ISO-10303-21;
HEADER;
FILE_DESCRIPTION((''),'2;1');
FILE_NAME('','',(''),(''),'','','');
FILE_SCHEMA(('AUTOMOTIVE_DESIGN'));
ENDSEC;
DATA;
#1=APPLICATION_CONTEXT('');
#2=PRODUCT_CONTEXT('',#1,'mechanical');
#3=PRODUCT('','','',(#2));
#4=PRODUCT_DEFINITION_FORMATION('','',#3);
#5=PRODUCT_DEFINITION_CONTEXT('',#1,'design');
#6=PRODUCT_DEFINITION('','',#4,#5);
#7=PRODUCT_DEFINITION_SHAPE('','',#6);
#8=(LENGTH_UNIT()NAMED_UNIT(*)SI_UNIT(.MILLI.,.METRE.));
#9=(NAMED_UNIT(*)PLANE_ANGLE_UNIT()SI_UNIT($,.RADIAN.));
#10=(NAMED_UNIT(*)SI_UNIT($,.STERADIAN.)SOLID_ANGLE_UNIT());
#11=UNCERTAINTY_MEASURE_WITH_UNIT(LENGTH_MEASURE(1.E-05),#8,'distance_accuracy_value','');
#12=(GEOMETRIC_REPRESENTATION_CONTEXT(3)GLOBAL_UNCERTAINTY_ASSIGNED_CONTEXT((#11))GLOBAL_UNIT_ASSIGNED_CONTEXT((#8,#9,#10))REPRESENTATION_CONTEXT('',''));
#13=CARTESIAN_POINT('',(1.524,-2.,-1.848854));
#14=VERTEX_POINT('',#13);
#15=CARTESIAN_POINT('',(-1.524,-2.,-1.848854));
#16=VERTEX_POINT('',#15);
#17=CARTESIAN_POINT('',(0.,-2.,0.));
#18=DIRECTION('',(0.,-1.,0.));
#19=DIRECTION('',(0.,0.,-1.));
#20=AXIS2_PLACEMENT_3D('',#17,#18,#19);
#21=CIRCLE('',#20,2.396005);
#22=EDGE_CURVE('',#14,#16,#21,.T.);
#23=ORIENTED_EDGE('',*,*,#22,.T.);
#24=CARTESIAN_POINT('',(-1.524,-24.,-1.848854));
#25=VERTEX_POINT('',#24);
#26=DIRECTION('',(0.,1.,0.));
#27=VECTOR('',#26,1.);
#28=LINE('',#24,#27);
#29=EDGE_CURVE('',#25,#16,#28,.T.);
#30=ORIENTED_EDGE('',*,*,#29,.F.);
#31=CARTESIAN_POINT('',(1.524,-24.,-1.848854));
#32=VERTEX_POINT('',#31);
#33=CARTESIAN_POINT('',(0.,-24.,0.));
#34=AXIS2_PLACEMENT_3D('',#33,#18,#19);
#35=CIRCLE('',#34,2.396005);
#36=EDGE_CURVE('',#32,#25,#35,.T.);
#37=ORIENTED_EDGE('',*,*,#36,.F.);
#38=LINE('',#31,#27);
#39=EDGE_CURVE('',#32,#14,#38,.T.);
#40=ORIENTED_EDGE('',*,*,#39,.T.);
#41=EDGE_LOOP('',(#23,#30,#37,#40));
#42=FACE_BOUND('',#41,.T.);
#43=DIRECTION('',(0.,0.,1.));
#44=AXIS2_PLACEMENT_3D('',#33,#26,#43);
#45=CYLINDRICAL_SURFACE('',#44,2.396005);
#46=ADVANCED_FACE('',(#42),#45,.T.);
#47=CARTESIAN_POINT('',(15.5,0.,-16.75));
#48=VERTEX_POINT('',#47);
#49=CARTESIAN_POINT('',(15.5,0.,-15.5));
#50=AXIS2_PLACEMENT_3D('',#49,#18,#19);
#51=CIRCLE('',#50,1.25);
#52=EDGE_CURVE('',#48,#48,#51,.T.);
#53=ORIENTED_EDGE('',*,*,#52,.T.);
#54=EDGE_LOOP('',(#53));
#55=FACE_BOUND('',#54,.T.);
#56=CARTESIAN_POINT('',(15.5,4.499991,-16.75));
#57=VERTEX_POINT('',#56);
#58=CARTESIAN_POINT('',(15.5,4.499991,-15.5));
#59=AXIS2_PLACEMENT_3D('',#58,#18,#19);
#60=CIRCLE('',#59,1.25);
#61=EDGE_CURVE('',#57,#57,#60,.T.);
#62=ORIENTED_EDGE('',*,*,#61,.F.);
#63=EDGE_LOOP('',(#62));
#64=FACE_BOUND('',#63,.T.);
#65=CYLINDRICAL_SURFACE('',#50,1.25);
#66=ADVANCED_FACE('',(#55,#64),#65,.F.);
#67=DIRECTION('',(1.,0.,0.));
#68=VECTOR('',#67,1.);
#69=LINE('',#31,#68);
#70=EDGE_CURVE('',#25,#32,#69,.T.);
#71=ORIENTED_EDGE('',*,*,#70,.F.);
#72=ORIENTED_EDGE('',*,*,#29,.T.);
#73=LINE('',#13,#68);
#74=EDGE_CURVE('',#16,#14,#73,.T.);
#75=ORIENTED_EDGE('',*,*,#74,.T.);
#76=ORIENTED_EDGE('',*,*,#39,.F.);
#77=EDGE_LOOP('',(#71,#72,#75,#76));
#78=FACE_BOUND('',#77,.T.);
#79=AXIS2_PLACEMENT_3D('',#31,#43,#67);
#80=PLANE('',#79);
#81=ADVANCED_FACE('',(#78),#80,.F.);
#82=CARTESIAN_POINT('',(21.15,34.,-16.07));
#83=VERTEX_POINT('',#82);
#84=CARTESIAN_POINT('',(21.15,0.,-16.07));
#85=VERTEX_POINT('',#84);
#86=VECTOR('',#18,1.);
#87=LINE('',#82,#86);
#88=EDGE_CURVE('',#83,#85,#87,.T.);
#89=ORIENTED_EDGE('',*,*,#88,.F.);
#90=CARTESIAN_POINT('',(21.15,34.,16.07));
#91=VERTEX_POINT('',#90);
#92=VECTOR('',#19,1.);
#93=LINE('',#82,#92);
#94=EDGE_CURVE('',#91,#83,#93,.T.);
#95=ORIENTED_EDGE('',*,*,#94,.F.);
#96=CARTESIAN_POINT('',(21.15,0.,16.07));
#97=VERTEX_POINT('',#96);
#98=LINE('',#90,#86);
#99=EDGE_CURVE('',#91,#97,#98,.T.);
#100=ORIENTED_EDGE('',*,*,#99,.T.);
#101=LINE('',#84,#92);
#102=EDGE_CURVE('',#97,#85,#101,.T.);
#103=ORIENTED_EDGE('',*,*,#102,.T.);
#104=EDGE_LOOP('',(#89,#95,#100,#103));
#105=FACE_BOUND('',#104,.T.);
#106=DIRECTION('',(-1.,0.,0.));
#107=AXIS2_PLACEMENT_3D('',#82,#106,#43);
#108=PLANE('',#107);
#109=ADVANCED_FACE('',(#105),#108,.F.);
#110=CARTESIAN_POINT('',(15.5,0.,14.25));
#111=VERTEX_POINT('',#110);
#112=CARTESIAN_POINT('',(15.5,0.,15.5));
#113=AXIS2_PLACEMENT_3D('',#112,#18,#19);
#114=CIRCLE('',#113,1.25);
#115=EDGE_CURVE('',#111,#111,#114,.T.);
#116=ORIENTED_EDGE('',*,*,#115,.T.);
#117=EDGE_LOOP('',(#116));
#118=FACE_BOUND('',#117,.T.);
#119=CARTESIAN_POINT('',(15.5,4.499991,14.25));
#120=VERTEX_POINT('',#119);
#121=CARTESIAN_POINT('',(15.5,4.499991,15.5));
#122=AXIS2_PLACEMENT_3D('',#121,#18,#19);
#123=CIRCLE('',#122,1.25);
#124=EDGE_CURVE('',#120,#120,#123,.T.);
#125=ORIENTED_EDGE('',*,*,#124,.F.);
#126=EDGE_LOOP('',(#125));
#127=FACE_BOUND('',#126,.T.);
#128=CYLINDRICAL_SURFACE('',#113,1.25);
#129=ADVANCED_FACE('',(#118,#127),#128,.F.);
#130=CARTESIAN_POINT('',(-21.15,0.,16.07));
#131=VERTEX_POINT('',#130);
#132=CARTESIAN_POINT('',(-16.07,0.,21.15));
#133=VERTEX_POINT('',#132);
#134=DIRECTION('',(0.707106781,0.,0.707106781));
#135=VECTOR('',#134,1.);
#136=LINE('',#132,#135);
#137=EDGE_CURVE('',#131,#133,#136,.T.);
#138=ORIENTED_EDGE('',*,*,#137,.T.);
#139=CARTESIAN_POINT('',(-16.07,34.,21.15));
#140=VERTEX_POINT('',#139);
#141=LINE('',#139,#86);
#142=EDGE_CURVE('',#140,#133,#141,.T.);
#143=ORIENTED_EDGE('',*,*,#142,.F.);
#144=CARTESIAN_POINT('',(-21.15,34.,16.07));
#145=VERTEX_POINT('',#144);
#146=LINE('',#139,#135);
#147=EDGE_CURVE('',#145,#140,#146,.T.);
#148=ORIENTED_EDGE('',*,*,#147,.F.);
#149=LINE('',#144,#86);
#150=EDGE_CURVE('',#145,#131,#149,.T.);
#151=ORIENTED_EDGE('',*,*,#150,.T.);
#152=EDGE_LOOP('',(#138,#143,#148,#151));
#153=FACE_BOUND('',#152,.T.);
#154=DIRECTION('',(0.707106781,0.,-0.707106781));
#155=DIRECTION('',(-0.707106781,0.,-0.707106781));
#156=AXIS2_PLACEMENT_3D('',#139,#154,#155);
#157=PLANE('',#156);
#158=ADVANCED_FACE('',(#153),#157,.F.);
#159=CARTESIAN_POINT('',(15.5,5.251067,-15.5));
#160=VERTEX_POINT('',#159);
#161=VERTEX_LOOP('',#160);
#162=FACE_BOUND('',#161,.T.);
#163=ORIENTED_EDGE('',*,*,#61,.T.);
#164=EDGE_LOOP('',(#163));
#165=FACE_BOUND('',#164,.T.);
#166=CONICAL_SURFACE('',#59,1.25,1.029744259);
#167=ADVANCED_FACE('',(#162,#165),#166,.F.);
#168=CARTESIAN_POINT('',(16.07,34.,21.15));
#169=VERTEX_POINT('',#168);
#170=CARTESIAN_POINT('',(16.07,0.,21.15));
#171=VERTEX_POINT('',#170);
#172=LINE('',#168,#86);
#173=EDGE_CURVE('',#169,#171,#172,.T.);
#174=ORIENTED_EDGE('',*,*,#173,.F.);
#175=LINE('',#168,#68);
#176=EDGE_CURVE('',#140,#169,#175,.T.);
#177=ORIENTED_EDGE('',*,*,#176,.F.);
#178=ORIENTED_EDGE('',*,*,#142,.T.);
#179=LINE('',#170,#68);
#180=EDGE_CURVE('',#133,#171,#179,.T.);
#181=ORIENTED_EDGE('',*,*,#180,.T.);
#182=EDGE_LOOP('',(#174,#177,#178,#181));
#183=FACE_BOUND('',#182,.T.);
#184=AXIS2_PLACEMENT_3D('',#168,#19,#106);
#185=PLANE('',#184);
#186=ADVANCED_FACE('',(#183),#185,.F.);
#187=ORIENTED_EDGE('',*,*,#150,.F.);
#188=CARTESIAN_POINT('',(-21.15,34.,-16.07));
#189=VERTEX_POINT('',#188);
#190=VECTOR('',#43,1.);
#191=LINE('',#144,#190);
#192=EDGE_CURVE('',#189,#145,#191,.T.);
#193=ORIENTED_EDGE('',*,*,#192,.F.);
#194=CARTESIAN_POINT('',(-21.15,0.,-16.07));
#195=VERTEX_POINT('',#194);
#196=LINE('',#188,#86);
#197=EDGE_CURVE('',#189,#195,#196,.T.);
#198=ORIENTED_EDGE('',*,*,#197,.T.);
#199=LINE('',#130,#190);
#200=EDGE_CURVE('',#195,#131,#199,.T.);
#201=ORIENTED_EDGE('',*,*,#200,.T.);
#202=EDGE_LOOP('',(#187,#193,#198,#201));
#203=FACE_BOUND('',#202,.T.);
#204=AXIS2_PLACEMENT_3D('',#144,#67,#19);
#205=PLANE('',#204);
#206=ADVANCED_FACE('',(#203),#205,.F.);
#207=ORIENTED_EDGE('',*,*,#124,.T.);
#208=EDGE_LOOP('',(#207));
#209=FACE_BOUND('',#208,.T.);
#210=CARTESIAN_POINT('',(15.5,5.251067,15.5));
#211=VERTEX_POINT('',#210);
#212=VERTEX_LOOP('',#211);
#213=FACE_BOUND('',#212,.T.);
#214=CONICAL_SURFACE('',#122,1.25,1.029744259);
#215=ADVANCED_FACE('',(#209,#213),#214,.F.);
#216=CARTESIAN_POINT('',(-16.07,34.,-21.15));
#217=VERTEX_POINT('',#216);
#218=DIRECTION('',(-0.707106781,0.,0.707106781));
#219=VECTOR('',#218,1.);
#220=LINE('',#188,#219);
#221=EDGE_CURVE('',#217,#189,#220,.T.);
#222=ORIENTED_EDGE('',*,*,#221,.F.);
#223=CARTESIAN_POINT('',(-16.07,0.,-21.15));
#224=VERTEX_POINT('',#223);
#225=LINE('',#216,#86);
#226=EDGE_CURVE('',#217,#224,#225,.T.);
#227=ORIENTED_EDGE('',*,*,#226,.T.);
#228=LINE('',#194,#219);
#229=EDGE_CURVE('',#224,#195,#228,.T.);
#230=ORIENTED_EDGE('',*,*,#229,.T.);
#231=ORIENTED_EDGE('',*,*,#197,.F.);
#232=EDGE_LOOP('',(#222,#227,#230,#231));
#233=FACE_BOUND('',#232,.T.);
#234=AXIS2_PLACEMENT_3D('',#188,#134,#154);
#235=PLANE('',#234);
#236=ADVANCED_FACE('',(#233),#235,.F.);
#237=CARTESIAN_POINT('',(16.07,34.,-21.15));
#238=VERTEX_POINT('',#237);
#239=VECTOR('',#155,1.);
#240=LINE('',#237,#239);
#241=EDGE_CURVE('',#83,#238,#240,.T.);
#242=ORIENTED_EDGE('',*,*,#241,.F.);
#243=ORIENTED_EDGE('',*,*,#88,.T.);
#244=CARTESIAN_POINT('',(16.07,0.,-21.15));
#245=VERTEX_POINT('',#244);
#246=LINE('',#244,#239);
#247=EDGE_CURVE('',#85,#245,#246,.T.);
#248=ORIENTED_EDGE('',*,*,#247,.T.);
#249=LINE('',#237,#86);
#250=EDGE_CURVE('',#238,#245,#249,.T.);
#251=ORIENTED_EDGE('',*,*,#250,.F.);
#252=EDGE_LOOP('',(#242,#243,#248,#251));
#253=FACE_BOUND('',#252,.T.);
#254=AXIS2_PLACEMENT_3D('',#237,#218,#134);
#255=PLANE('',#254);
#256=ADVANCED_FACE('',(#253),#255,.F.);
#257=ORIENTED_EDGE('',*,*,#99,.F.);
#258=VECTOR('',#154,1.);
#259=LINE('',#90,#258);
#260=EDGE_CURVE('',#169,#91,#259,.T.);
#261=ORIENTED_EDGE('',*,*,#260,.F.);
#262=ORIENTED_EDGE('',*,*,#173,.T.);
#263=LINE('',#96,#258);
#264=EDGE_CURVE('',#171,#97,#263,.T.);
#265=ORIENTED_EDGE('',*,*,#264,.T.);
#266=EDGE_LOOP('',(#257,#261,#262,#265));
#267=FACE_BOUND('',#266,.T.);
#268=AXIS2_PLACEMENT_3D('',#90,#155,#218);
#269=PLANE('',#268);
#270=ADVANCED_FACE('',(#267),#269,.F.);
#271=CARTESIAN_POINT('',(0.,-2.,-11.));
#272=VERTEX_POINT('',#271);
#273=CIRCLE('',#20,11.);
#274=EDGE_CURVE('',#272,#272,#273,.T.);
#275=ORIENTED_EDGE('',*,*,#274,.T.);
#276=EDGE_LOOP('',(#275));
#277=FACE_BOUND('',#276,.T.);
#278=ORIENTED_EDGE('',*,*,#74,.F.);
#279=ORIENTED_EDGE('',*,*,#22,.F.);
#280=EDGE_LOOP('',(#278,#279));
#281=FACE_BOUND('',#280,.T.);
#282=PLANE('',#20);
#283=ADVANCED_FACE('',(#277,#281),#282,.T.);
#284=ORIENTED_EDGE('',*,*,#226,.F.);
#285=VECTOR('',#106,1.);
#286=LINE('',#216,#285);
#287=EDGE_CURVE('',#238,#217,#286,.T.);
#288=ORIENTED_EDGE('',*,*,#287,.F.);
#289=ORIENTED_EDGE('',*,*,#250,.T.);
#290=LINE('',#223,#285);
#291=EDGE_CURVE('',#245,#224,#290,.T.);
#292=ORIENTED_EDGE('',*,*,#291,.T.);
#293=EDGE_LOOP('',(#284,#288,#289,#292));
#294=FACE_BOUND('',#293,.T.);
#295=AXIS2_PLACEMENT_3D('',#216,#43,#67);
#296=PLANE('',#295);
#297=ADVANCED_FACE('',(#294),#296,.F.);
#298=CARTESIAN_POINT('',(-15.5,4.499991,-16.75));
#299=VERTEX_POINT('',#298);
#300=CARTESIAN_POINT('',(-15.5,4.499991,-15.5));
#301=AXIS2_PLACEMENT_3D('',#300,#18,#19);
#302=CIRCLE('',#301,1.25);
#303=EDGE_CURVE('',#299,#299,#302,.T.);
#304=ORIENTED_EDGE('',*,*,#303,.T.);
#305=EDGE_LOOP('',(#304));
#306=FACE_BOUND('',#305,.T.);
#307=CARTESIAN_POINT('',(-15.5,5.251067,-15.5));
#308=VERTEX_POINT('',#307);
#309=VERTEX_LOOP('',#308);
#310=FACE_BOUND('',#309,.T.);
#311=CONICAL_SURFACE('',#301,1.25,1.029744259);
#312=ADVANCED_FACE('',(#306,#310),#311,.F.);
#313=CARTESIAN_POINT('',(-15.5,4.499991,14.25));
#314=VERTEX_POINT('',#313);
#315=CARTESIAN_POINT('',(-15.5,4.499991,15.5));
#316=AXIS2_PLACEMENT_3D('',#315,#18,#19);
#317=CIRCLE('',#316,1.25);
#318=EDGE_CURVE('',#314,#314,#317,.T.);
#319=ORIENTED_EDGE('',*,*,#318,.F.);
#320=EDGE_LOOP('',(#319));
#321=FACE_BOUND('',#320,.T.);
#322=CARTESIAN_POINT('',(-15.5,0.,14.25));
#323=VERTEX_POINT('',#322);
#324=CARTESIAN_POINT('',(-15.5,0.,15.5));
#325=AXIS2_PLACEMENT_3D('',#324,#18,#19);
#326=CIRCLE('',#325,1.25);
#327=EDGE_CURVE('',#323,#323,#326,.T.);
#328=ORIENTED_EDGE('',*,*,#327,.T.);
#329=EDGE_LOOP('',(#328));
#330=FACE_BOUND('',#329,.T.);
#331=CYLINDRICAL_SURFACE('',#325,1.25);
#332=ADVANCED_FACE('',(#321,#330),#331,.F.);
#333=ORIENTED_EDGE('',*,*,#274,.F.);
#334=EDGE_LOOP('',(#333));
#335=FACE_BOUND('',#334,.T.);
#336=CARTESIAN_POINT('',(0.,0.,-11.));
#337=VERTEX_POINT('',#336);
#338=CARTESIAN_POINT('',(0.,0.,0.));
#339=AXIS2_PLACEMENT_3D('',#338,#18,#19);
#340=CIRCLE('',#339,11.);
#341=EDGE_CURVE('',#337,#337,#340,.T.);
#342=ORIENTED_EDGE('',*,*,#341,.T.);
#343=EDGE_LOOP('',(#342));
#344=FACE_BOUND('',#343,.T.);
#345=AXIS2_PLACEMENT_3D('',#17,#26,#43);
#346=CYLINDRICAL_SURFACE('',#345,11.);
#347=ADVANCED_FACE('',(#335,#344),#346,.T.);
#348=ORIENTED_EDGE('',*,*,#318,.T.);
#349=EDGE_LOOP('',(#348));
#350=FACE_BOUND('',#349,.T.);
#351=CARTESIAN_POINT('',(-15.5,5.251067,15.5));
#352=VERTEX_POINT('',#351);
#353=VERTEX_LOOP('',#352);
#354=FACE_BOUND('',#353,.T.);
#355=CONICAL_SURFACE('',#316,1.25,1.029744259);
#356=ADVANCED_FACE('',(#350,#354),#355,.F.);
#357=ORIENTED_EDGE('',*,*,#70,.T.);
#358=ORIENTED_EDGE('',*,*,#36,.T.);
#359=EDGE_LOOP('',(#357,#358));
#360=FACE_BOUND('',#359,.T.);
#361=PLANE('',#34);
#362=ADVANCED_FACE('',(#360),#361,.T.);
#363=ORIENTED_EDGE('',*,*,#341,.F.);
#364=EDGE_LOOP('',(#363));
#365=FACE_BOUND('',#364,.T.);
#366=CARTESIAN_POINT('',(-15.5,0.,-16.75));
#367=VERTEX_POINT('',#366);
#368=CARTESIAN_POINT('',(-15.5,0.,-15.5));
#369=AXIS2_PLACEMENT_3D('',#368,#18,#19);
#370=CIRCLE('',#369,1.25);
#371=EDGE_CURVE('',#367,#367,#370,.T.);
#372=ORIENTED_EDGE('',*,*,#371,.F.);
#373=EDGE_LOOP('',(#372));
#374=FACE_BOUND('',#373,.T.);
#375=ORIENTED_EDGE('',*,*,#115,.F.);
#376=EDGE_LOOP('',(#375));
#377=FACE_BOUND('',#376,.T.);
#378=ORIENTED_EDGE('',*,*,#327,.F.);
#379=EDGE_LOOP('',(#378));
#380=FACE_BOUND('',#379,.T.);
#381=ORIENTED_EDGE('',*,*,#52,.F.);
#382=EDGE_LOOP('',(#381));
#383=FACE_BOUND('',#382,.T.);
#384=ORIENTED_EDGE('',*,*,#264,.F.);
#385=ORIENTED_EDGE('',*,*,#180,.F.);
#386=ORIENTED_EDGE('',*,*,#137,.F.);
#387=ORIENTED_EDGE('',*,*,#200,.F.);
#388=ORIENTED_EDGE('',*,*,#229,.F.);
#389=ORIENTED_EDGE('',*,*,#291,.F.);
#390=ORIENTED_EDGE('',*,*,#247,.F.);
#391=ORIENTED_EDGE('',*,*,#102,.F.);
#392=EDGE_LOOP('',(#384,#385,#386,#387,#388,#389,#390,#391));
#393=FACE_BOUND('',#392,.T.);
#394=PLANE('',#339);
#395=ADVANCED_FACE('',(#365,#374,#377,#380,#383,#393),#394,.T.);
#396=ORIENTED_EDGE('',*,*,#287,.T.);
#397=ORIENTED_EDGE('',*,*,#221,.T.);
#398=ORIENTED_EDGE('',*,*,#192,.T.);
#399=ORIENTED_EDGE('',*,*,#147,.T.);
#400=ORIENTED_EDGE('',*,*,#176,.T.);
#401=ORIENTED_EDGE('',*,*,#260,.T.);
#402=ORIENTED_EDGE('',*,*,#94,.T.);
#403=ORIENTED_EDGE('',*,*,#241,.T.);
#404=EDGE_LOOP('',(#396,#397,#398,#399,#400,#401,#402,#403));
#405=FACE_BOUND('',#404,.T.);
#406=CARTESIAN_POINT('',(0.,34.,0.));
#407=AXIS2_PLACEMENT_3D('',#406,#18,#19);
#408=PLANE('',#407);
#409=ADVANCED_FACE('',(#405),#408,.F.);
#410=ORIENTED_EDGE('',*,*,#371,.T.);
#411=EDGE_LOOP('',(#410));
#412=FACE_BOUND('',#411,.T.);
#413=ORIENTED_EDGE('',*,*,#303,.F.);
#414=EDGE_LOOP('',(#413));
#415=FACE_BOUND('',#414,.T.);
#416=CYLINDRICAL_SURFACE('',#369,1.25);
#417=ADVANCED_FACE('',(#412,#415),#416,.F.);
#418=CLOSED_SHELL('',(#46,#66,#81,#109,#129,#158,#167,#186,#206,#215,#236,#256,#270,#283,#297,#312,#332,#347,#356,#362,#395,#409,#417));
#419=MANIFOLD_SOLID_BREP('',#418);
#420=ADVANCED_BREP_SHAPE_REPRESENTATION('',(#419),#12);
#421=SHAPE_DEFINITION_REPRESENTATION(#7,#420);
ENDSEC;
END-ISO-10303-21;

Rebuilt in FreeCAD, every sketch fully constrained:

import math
import FreeCAD as App
import Part
import Sketcher

V = App.Vector


def add_polygon(sketch, points):
    """Adds a closed chain of lines whose ends are joined by coincident constraints."""
    first, n = sketch.GeometryCount, len(points)
    for a, b in zip(points, points[1:] + points[:1]):
        sketch.addGeometry(Part.LineSegment(App.Vector(*a, 0), App.Vector(*b, 0)), False)
    for i in range(n):
        sketch.addConstraint(Sketcher.Constraint("Coincident", first + i, 2, first + (i + 1) % n, 1))

doc = App.newDocument("Part")
body = doc.addObject("PartDesign::Body", "Body")

# Sketch on XZ plane
sketch1 = doc.addObject("Sketcher::SketchObject", "Sketch")
body.addObject(sketch1)
sketch1.AttachmentSupport = (doc.XZ_Plane, [""])
sketch1.MapMode = "FlatFace"
add_polygon(sketch1, [(-21, -16), (-21, 16), (-16, 21), (16, 21), (21, 16), (21, -16), (16, -21), (-16, -21)])  # lines 0-7
sketch1.addConstraint(Sketcher.Constraint("Vertical", 0))
sketch1.addConstraint(Sketcher.Constraint("Horizontal", 2))
sketch1.addConstraint(Sketcher.Constraint("Vertical", 4))
sketch1.addConstraint(Sketcher.Constraint("Horizontal", 6))
sketch1.addConstraint(Sketcher.Constraint("Symmetric", 0, 2, 4, 2, -1, 1))
sketch1.addConstraint(Sketcher.Constraint("Symmetric", 1, 2, 5, 2, -1, 1))
sketch1.addConstraint(Sketcher.Constraint("Perpendicular", 1, 3))
sketch1.addConstraint(Sketcher.Constraint("Perpendicular", 5, 7))
sketch1.addConstraint(Sketcher.Constraint("Horizontal", 0, 2, 3, 2))
sketch1.addConstraint(Sketcher.Constraint("Horizontal", 4, 2, 7, 2))
sketch1.addConstraint(Sketcher.Constraint("Vertical", 2, 2, 5, 2))
sketch1.addConstraint(Sketcher.Constraint("Equal", 6, 0))
sketch1.addConstraint(Sketcher.Constraint("DistanceX", 2, 1, 2, 2, 32.14))
sketch1.addConstraint(Sketcher.Constraint("DistanceX", 0, 2, 3, 2, 42.3))
pad1 = doc.addObject("PartDesign::Pad", "Pad")
body.addObject(pad1)
pad1.Profile = sketch1
pad1.Length = 34
pad1.Reversed = True

# Sketch on XZ plane
sketch2 = doc.addObject("Sketcher::SketchObject", "Sketch001")
body.addObject(sketch2)
sketch2.AttachmentSupport = (doc.XZ_Plane, [""])
sketch2.MapMode = "FlatFace"
sketch2.addGeometry(Part.Circle(V(15.5, -15.5, 0), V(0, 0, 1), 1.2), False)
sketch2.addGeometry(Part.Circle(V(-15.5, -15.5, 0), V(0, 0, 1), 1.2), False)
sketch2.addGeometry(Part.Circle(V(-15.5, 15.5, 0), V(0, 0, 1), 1.2), False)
sketch2.addGeometry(Part.Circle(V(15.5, 15.5, 0), V(0, 0, 1), 1.2), False)
sketch2.addConstraint(Sketcher.Constraint("Equal", 0, 1))
sketch2.addConstraint(Sketcher.Constraint("Equal", 1, 2))
sketch2.addConstraint(Sketcher.Constraint("Equal", 2, 3))
sketch2.addConstraint(Sketcher.Constraint("Symmetric", 0, 3, 2, 3, -1, 1))
sketch2.addConstraint(Sketcher.Constraint("Symmetric", 1, 3, 3, 3, -1, 1))
sketch2.addConstraint(Sketcher.Constraint("Symmetric", 0, 3, 1, 3, -2))
sketch2.addConstraint(Sketcher.Constraint("Diameter", 0, 2.5))
sketch2.addConstraint(Sketcher.Constraint("DistanceX", 1, 3, 0, 3, 31.0))
sketch2.addConstraint(Sketcher.Constraint("DistanceY", 1, 3, 2, 3, 31.0))
doc.recompute()
hole = doc.addObject("PartDesign::Hole", "Hole")
body.addObject(hole)
hole.Profile = sketch2
hole.ThreadType = "None"
hole.Diameter = 2.5
hole.DepthType = "Dimension"
hole.Depth = 4.499991
hole.DrillPoint = "Angled"
hole.DrillPointAngle = 118

# Sketch on XZ plane
sketch3 = doc.addObject("Sketcher::SketchObject", "Sketch002")
body.addObject(sketch3)
sketch3.AttachmentSupport = (doc.XZ_Plane, [""])
sketch3.MapMode = "FlatFace"
sketch3.addGeometry(Part.Circle(V(0, 0, 0), V(0, 0, 1), 11), False)
sketch3.addConstraint(Sketcher.Constraint("Coincident", 0, 3, -1, 1))
sketch3.addConstraint(Sketcher.Constraint("Diameter", 0, 22.0))
pad2 = doc.addObject("PartDesign::Pad", "Pad001")
body.addObject(pad2)
pad2.Profile = sketch3
pad2.Length = 2

# Sketch on XZ plane
sketch4 = doc.addObject("Sketcher::SketchObject", "Sketch003")
body.addObject(sketch4)
sketch4.AttachmentSupport = (doc.XZ_Plane, [""])
sketch4.MapMode = "FlatFace"
sketch4.AttachmentOffset = App.Placement(V(0, 0, 2), App.Rotation())
sketch4.addGeometry(Part.LineSegment(V(-1.5, -1.8, 0), V(1.5, -1.8, 0)), False)
sketch4.addGeometry(Part.ArcOfCircle(Part.Circle(V(0, 0, 0), V(0, 0, 1), 2.4), math.radians(-51), math.radians(231)), False)
sketch4.addConstraint(Sketcher.Constraint("Coincident", 0, 1, 1, 2))
sketch4.addConstraint(Sketcher.Constraint("Coincident", 1, 1, 0, 2))
sketch4.addConstraint(Sketcher.Constraint("Horizontal", 0))
sketch4.addConstraint(Sketcher.Constraint("Coincident", 1, 3, -1, 1))
sketch4.addConstraint(Sketcher.Constraint("DistanceX", 0, 1, 0, 2, 3.048))
sketch4.addConstraint(Sketcher.Constraint("Radius", 1, 2.396005))
pad3 = doc.addObject("PartDesign::Pad", "Pad002")
body.addObject(pad3)
pad3.Profile = sketch4
pad3.Length = 22

doc.recompute()
